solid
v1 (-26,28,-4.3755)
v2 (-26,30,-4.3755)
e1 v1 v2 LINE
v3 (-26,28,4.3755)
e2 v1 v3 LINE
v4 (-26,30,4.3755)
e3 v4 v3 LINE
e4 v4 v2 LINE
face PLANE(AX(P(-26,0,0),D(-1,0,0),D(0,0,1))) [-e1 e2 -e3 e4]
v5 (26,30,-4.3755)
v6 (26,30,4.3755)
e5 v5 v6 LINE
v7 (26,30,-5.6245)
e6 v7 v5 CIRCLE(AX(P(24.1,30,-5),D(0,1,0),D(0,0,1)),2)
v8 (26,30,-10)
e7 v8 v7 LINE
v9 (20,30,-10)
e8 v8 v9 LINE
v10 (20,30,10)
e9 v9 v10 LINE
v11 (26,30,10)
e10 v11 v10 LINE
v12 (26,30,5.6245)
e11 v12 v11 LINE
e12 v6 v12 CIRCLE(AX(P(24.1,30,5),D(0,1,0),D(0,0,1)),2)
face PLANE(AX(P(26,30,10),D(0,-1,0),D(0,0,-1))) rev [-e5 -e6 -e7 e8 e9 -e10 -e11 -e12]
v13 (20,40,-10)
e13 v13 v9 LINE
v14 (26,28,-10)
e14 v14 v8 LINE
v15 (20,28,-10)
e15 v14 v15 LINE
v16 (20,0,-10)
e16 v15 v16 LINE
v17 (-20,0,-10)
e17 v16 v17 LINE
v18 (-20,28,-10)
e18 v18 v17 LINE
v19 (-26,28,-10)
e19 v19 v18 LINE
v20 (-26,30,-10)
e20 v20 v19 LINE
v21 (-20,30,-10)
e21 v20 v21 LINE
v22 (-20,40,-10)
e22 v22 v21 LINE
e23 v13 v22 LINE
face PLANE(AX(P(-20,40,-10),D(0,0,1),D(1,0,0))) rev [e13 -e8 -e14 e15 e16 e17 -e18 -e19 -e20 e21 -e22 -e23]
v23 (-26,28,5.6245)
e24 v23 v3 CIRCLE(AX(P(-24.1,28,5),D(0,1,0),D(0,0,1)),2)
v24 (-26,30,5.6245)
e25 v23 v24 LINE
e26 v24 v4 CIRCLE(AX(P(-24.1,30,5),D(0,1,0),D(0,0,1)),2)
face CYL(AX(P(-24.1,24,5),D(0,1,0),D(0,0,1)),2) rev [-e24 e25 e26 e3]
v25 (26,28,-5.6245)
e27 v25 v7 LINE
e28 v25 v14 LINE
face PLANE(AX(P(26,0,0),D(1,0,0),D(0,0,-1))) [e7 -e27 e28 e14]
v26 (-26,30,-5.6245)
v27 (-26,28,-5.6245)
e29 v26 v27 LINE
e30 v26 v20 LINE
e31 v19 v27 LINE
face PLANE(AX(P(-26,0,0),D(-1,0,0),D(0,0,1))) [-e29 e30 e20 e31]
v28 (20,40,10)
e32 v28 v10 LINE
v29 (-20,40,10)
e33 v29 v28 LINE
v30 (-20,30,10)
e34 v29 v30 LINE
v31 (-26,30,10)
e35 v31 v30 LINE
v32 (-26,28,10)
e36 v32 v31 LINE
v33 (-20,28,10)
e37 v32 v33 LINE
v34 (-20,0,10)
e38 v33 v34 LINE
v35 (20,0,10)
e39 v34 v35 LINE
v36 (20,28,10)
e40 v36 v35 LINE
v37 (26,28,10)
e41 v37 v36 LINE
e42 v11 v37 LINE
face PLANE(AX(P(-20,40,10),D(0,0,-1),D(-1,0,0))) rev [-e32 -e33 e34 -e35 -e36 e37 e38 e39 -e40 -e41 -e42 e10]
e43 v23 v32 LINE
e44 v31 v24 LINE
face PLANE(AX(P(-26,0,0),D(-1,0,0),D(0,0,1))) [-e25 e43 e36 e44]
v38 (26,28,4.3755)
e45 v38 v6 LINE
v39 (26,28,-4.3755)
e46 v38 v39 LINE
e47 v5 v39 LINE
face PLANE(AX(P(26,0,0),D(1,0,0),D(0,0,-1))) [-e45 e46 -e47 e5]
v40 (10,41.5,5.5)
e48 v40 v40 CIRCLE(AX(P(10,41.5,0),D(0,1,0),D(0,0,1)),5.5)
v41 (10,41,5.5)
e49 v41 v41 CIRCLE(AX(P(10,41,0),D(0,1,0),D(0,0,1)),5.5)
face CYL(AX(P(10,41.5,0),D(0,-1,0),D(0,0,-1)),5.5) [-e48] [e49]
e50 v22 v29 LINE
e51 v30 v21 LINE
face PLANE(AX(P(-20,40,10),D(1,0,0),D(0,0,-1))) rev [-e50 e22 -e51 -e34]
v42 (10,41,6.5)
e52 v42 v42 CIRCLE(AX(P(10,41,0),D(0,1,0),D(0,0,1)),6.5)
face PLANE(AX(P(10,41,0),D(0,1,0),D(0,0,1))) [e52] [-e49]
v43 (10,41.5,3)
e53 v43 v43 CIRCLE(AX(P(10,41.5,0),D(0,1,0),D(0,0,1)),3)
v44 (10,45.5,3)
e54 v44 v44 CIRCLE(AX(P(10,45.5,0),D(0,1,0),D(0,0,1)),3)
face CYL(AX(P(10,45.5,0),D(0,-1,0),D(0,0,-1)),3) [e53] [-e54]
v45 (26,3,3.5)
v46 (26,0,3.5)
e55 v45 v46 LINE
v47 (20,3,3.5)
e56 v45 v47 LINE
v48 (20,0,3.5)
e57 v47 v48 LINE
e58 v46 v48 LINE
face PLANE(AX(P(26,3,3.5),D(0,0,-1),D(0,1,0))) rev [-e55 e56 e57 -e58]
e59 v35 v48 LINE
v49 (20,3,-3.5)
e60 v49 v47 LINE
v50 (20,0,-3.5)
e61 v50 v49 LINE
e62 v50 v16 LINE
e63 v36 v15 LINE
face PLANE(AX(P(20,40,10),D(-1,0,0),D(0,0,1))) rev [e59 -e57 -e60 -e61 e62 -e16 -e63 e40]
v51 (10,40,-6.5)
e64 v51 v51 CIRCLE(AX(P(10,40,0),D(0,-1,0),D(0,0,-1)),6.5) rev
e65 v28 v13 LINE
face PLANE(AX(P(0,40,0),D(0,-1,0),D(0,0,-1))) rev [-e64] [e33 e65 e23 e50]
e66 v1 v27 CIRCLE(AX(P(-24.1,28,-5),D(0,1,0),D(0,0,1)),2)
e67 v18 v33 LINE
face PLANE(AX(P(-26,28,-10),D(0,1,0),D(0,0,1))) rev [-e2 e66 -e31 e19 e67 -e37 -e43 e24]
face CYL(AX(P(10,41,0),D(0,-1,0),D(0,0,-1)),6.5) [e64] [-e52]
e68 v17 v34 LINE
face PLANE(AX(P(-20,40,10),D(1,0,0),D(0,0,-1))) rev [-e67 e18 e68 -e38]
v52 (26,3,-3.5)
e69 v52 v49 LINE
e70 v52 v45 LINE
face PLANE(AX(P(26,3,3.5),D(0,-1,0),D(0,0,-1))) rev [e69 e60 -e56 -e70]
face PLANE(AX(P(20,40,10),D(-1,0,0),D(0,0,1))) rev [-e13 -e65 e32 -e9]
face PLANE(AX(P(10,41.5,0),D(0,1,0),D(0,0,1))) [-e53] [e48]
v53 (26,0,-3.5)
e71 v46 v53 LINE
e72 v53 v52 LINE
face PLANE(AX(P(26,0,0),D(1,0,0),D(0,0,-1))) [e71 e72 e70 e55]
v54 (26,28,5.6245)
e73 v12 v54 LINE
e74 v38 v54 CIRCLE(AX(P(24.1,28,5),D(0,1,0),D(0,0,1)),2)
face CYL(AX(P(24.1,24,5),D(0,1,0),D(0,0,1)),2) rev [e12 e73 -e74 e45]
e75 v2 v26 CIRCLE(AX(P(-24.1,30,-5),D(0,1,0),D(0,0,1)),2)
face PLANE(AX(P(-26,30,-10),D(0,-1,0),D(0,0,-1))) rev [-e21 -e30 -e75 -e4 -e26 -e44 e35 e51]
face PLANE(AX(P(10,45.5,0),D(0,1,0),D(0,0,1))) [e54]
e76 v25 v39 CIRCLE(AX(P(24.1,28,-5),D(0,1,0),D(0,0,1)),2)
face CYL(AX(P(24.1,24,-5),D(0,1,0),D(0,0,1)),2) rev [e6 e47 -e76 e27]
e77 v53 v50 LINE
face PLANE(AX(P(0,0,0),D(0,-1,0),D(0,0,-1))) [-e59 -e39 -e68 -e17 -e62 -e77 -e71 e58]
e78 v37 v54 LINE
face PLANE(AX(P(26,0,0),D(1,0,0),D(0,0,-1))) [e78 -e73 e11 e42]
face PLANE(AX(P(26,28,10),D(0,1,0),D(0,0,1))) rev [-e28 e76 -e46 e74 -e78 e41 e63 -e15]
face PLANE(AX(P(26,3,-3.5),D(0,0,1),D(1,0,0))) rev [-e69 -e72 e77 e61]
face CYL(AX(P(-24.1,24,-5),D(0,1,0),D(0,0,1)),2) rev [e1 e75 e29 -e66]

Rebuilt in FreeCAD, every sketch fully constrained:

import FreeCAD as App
import Part
import Sketcher


def add_polygon(sketch, points):
    """Adds a closed chain of lines whose ends are joined by coincident constraints."""
    first, n = sketch.GeometryCount, len(points)
    for a, b in zip(points, points[1:] + points[:1]):
        sketch.addGeometry(Part.LineSegment(App.Vector(*a, 0), App.Vector(*b, 0)), False)
    for i in range(n):
        sketch.addConstraint(Sketcher.Constraint("Coincident", first + i, 2, first + (i + 1) % n, 1))

doc = App.newDocument("Part")
body = doc.addObject("PartDesign::Body", "Body")

# Sketch on XZ plane
sketch1 = body.newObject("Sketcher::SketchObject", "Sketch")
sketch1.AttachmentSupport = (doc.getObject("XZ_Plane"), [""])
sketch1.MapMode = "FlatFace"
add_polygon(sketch1, [(-20, -10), (-20, 10), (20, 10), (20, -10)])  # lines 0-3
sketch1.addConstraint(Sketcher.Constraint("Vertical", 0))
sketch1.addConstraint(Sketcher.Constraint("Horizontal", 1))
sketch1.addConstraint(Sketcher.Constraint("Vertical", 2))
sketch1.addConstraint(Sketcher.Constraint("Horizontal", 3))
sketch1.addConstraint(Sketcher.Constraint("Symmetric", 0, 2, 2, 2, -1, 1))
sketch1.addConstraint(Sketcher.Constraint("DistanceX", 1, 1, 1, 2, 40.0))
sketch1.addConstraint(Sketcher.Constraint("DistanceY", 0, 1, 0, 2, 20.0))
pad1 = body.newObject("PartDesign::Pad", "Pad")
pad1.Profile = sketch1
pad1.Length = 40
pad1.Reversed = True

# Sketch on YZ plane
sketch2 = body.newObject("Sketcher::SketchObject", "Sketch001")
sketch2.AttachmentSupport = (doc.getObject("YZ_Plane"), [""])
sketch2.MapMode = "FlatFace"
sketch2.AttachmentOffset = App.Placement(App.Vector(0, 0, 20), App.Rotation())
add_polygon(sketch2, [(30, 10), (28, 10), (28, -10), (30, -10)])  # lines 0-3
add_polygon(sketch2, [(3, 3.5), (0, 3.5), (0, -3.5), (3, -3.5)])  # lines 4-7
sketch2.addConstraint(Sketcher.Constraint("Horizontal", 0))
sketch2.addConstraint(Sketcher.Constraint("Vertical", 1))
sketch2.addConstraint(Sketcher.Constraint("Horizontal", 2))
sketch2.addConstraint(Sketcher.Constraint("Vertical", 3))
sketch2.addConstraint(Sketcher.Constraint("Horizontal", 4))
sketch2.addConstraint(Sketcher.Constraint("Vertical", 5))
sketch2.addConstraint(Sketcher.Constraint("Horizontal", 6))
sketch2.addConstraint(Sketcher.Constraint("Vertical", 7))
sketch2.addConstraint(Sketcher.Constraint("Symmetric", 4, 2, 5, 2, -1, 1))
sketch2.addConstraint(Sketcher.Constraint("DistanceX", 0, 2, 0, 1, 2.0))
sketch2.addConstraint(Sketcher.Constraint("DistanceX", 4, 2, 4, 1, 3.0))
sketch2.addConstraint(Sketcher.Constraint("DistanceY", 1, 2, 1, 1, 20.0))
sketch2.addConstraint(Sketcher.Constraint("DistanceY", 5, 2, 5, 1, 7.0))
sketch2.addConstraint(Sketcher.Constraint("DistanceX", -1, 1, 0, 2, 28.0))
sketch2.addConstraint(Sketcher.Constraint("DistanceY", -1, 1, 0, 2, 10.0))
pad2 = body.newObject("PartDesign::Pad", "Pad001")
pad2.Profile = sketch2
pad2.Length = 6

# Sketch on YZ plane
sketch3 = body.newObject("Sketcher::SketchObject", "Sketch002")
sketch3.AttachmentSupport = (doc.getObject("YZ_Plane"), [""])
sketch3.MapMode = "FlatFace"
sketch3.AttachmentOffset = App.Placement(App.Vector(0, 0, -20), App.Rotation())
add_polygon(sketch3, [(30, -10), (28, -10), (28, 10), (30, 10)])  # lines 0-3
sketch3.addConstraint(Sketcher.Constraint("Horizontal", 0))
sketch3.addConstraint(Sketcher.Constraint("Vertical", 1))
sketch3.addConstraint(Sketcher.Constraint("Horizontal", 2))
sketch3.addConstraint(Sketcher.Constraint("Vertical", 3))
sketch3.addConstraint(Sketcher.Constraint("DistanceX", 0, 2, 0, 1, 2.0))
sketch3.addConstraint(Sketcher.Constraint("DistanceY", 1, 1, 1, 2, 20.0))
sketch3.addConstraint(Sketcher.Constraint("DistanceX", -1, 1, 0, 2, 28.0))
sketch3.addConstraint(Sketcher.Constraint("DistanceY", 0, 2, -1, 1, 10.0))
pad3 = body.newObject("PartDesign::Pad", "Pad002")
pad3.Profile = sketch3
pad3.Length = 6
pad3.Reversed = True

# Sketch on XZ plane
sketch4 = body.newObject("Sketcher::SketchObject", "Sketch003")
sketch4.AttachmentSupport = (doc.getObject("XZ_Plane"), [""])
sketch4.MapMode = "FlatFace"
sketch4.AttachmentOffset = App.Placement(App.Vector(0, 0, -30), App.Rotation())
sketch4.addGeometry(Part.Circle(App.Vector(24.1, -5, 0), App.Vector(0, 0, 1), 2), False)
sketch4.addGeometry(Part.Circle(App.Vector(24.1, 5, 0), App.Vector(0, 0, 1), 2), False)
sketch4.addGeometry(Part.Circle(App.Vector(-24.1, -5, 0), App.Vector(0, 0, 1), 2), False)
sketch4.addGeometry(Part.Circle(App.Vector(-24.1, 5, 0), App.Vector(0, 0, 1), 2), False)
sketch4.addConstraint(Sketcher.Constraint("Equal", 0, 1))
sketch4.addConstraint(Sketcher.Constraint("Equal", 1, 2))
sketch4.addConstraint(Sketcher.Constraint("Equal", 2, 3))
sketch4.addConstraint(Sketcher.Constraint("Symmetric", 1, 3, 2, 3, -1, 1))
sketch4.addConstraint(Sketcher.Constraint("Symmetric", 0, 3, 3, 3, -1, 1))
sketch4.addConstraint(Sketcher.Constraint("Symmetric", 0, 3, 2, 3, -2))
sketch4.addConstraint(Sketcher.Constraint("Diameter", 0, 4.0))
sketch4.addConstraint(Sketcher.Constraint("DistanceY", 0, 3, -1, 1, 5.0))
sketch4.addConstraint(Sketcher.Constraint("DistanceX", -1, 1, 0, 3, 24.1))
pocket1 = body.newObject("PartDesign::Pocket", "Pocket")
pocket1.Profile = sketch4
pocket1.Length = 6
pocket1.Reversed = True

# Sketch on XZ plane
sketch5 = body.newObject("Sketcher::SketchObject", "Sketch004")
sketch5.AttachmentSupport = (doc.getObject("XZ_Plane"), [""])
sketch5.MapMode = "FlatFace"
sketch5.AttachmentOffset = App.Placement(App.Vector(0, 0, -40), App.Rotation())
sketch5.addGeometry(Part.Circle(App.Vector(10, 0, 0), App.Vector(0, 0, 1), 6.5), False)
sketch5.addConstraint(Sketcher.Constraint("PointOnObject", 0, 3, -1))
sketch5.addConstraint(Sketcher.Constraint("Diameter", 0, 13.0))
sketch5.addConstraint(Sketcher.Constraint("DistanceX", -1, 1, 0, 3, 10.0))
pad4 = body.newObject("PartDesign::Pad", "Pad003")
pad4.Profile = sketch5
pad4.Length = 1
pad4.Reversed = True

# Sketch on XZ plane
sketch6 = body.newObject("Sketcher::SketchObject", "Sketch005")
sketch6.AttachmentSupport = (doc.getObject("XZ_Plane"), [""])
sketch6.MapMode = "FlatFace"
sketch6.AttachmentOffset = App.Placement(App.Vector(0, 0, -41), App.Rotation())
sketch6.addGeometry(Part.Circle(App.Vector(10, 0, 0), App.Vector(0, 0, 1), 5.5), False)
sketch6.addConstraint(Sketcher.Constraint("PointOnObject", 0, 3, -1))
sketch6.addConstraint(Sketcher.Constraint("Diameter", 0, 11.0))
sketch6.addConstraint(Sketcher.Constraint("DistanceX", -1, 1, 0, 3, 10.0))
pad5 = body.newObject("PartDesign::Pad", "Pad004")
pad5.Profile = sketch6
pad5.Length = 0.5
pad5.Reversed = True

# Sketch on XZ plane
sketch7 = body.newObject("Sketcher::SketchObject", "Sketch006")
sketch7.AttachmentSupport = (doc.getObject("XZ_Plane"), [""])
sketch7.MapMode = "FlatFace"
sketch7.AttachmentOffset = App.Placement(App.Vector(0, 0, -41.5), App.Rotation())
sketch7.addGeometry(Part.Circle(App.Vector(10, 0, 0), App.Vector(0, 0, 1), 3), False)
sketch7.addConstraint(Sketcher.Constraint("PointOnObject", 0, 3, -1))
sketch7.addConstraint(Sketcher.Constraint("Diameter", 0, 6.0))
sketch7.addConstraint(Sketcher.Constraint("DistanceX", -1, 1, 0, 3, 10.0))
pad6 = body.newObject("PartDesign::Pad", "Pad005")
pad6.Profile = sketch7
pad6.Length = 4
pad6.Reversed = True

doc.recompute()
